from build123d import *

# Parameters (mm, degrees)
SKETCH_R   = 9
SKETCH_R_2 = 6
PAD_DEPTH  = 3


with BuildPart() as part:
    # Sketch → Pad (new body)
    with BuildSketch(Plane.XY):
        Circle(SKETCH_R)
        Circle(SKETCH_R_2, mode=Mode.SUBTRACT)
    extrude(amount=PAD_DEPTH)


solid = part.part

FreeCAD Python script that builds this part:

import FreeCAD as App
import Part
import Sketcher

V = App.Vector
Q = App.Units.Quantity

doc = App.newDocument("Part")
body = doc.addObject("PartDesign::Body", "Body")

# Sketch on XY plane
sketch1 = body.newObject("Sketcher::SketchObject", "Sketch")
sketch1.AttachmentSupport = (doc.getObject("XY_Plane"), [""])
sketch1.MapMode = "FlatFace"
sketch1.addGeometry(Part.Circle(V(0, 0, 0), V(0, 0, 1), 9), False)
sketch1.addGeometry(Part.Circle(V(0, 0, 0), V(0, 0, 1), 6), False)
sketch1.addConstraint(Sketcher.Constraint("Coincident", 0, 3, -1, 1))
sketch1.addConstraint(Sketcher.Constraint("Coincident", 1, 3, -1, 1))
sketch1.addConstraint(Sketcher.Constraint("Diameter", 0, Q("18 mm")))
sketch1.addConstraint(Sketcher.Constraint("Diameter", 1, Q("12 mm")))
pad1 = body.newObject("PartDesign::Pad", "Pad")
pad1.Profile = sketch1
pad1.Length = 3

doc.recompute()
